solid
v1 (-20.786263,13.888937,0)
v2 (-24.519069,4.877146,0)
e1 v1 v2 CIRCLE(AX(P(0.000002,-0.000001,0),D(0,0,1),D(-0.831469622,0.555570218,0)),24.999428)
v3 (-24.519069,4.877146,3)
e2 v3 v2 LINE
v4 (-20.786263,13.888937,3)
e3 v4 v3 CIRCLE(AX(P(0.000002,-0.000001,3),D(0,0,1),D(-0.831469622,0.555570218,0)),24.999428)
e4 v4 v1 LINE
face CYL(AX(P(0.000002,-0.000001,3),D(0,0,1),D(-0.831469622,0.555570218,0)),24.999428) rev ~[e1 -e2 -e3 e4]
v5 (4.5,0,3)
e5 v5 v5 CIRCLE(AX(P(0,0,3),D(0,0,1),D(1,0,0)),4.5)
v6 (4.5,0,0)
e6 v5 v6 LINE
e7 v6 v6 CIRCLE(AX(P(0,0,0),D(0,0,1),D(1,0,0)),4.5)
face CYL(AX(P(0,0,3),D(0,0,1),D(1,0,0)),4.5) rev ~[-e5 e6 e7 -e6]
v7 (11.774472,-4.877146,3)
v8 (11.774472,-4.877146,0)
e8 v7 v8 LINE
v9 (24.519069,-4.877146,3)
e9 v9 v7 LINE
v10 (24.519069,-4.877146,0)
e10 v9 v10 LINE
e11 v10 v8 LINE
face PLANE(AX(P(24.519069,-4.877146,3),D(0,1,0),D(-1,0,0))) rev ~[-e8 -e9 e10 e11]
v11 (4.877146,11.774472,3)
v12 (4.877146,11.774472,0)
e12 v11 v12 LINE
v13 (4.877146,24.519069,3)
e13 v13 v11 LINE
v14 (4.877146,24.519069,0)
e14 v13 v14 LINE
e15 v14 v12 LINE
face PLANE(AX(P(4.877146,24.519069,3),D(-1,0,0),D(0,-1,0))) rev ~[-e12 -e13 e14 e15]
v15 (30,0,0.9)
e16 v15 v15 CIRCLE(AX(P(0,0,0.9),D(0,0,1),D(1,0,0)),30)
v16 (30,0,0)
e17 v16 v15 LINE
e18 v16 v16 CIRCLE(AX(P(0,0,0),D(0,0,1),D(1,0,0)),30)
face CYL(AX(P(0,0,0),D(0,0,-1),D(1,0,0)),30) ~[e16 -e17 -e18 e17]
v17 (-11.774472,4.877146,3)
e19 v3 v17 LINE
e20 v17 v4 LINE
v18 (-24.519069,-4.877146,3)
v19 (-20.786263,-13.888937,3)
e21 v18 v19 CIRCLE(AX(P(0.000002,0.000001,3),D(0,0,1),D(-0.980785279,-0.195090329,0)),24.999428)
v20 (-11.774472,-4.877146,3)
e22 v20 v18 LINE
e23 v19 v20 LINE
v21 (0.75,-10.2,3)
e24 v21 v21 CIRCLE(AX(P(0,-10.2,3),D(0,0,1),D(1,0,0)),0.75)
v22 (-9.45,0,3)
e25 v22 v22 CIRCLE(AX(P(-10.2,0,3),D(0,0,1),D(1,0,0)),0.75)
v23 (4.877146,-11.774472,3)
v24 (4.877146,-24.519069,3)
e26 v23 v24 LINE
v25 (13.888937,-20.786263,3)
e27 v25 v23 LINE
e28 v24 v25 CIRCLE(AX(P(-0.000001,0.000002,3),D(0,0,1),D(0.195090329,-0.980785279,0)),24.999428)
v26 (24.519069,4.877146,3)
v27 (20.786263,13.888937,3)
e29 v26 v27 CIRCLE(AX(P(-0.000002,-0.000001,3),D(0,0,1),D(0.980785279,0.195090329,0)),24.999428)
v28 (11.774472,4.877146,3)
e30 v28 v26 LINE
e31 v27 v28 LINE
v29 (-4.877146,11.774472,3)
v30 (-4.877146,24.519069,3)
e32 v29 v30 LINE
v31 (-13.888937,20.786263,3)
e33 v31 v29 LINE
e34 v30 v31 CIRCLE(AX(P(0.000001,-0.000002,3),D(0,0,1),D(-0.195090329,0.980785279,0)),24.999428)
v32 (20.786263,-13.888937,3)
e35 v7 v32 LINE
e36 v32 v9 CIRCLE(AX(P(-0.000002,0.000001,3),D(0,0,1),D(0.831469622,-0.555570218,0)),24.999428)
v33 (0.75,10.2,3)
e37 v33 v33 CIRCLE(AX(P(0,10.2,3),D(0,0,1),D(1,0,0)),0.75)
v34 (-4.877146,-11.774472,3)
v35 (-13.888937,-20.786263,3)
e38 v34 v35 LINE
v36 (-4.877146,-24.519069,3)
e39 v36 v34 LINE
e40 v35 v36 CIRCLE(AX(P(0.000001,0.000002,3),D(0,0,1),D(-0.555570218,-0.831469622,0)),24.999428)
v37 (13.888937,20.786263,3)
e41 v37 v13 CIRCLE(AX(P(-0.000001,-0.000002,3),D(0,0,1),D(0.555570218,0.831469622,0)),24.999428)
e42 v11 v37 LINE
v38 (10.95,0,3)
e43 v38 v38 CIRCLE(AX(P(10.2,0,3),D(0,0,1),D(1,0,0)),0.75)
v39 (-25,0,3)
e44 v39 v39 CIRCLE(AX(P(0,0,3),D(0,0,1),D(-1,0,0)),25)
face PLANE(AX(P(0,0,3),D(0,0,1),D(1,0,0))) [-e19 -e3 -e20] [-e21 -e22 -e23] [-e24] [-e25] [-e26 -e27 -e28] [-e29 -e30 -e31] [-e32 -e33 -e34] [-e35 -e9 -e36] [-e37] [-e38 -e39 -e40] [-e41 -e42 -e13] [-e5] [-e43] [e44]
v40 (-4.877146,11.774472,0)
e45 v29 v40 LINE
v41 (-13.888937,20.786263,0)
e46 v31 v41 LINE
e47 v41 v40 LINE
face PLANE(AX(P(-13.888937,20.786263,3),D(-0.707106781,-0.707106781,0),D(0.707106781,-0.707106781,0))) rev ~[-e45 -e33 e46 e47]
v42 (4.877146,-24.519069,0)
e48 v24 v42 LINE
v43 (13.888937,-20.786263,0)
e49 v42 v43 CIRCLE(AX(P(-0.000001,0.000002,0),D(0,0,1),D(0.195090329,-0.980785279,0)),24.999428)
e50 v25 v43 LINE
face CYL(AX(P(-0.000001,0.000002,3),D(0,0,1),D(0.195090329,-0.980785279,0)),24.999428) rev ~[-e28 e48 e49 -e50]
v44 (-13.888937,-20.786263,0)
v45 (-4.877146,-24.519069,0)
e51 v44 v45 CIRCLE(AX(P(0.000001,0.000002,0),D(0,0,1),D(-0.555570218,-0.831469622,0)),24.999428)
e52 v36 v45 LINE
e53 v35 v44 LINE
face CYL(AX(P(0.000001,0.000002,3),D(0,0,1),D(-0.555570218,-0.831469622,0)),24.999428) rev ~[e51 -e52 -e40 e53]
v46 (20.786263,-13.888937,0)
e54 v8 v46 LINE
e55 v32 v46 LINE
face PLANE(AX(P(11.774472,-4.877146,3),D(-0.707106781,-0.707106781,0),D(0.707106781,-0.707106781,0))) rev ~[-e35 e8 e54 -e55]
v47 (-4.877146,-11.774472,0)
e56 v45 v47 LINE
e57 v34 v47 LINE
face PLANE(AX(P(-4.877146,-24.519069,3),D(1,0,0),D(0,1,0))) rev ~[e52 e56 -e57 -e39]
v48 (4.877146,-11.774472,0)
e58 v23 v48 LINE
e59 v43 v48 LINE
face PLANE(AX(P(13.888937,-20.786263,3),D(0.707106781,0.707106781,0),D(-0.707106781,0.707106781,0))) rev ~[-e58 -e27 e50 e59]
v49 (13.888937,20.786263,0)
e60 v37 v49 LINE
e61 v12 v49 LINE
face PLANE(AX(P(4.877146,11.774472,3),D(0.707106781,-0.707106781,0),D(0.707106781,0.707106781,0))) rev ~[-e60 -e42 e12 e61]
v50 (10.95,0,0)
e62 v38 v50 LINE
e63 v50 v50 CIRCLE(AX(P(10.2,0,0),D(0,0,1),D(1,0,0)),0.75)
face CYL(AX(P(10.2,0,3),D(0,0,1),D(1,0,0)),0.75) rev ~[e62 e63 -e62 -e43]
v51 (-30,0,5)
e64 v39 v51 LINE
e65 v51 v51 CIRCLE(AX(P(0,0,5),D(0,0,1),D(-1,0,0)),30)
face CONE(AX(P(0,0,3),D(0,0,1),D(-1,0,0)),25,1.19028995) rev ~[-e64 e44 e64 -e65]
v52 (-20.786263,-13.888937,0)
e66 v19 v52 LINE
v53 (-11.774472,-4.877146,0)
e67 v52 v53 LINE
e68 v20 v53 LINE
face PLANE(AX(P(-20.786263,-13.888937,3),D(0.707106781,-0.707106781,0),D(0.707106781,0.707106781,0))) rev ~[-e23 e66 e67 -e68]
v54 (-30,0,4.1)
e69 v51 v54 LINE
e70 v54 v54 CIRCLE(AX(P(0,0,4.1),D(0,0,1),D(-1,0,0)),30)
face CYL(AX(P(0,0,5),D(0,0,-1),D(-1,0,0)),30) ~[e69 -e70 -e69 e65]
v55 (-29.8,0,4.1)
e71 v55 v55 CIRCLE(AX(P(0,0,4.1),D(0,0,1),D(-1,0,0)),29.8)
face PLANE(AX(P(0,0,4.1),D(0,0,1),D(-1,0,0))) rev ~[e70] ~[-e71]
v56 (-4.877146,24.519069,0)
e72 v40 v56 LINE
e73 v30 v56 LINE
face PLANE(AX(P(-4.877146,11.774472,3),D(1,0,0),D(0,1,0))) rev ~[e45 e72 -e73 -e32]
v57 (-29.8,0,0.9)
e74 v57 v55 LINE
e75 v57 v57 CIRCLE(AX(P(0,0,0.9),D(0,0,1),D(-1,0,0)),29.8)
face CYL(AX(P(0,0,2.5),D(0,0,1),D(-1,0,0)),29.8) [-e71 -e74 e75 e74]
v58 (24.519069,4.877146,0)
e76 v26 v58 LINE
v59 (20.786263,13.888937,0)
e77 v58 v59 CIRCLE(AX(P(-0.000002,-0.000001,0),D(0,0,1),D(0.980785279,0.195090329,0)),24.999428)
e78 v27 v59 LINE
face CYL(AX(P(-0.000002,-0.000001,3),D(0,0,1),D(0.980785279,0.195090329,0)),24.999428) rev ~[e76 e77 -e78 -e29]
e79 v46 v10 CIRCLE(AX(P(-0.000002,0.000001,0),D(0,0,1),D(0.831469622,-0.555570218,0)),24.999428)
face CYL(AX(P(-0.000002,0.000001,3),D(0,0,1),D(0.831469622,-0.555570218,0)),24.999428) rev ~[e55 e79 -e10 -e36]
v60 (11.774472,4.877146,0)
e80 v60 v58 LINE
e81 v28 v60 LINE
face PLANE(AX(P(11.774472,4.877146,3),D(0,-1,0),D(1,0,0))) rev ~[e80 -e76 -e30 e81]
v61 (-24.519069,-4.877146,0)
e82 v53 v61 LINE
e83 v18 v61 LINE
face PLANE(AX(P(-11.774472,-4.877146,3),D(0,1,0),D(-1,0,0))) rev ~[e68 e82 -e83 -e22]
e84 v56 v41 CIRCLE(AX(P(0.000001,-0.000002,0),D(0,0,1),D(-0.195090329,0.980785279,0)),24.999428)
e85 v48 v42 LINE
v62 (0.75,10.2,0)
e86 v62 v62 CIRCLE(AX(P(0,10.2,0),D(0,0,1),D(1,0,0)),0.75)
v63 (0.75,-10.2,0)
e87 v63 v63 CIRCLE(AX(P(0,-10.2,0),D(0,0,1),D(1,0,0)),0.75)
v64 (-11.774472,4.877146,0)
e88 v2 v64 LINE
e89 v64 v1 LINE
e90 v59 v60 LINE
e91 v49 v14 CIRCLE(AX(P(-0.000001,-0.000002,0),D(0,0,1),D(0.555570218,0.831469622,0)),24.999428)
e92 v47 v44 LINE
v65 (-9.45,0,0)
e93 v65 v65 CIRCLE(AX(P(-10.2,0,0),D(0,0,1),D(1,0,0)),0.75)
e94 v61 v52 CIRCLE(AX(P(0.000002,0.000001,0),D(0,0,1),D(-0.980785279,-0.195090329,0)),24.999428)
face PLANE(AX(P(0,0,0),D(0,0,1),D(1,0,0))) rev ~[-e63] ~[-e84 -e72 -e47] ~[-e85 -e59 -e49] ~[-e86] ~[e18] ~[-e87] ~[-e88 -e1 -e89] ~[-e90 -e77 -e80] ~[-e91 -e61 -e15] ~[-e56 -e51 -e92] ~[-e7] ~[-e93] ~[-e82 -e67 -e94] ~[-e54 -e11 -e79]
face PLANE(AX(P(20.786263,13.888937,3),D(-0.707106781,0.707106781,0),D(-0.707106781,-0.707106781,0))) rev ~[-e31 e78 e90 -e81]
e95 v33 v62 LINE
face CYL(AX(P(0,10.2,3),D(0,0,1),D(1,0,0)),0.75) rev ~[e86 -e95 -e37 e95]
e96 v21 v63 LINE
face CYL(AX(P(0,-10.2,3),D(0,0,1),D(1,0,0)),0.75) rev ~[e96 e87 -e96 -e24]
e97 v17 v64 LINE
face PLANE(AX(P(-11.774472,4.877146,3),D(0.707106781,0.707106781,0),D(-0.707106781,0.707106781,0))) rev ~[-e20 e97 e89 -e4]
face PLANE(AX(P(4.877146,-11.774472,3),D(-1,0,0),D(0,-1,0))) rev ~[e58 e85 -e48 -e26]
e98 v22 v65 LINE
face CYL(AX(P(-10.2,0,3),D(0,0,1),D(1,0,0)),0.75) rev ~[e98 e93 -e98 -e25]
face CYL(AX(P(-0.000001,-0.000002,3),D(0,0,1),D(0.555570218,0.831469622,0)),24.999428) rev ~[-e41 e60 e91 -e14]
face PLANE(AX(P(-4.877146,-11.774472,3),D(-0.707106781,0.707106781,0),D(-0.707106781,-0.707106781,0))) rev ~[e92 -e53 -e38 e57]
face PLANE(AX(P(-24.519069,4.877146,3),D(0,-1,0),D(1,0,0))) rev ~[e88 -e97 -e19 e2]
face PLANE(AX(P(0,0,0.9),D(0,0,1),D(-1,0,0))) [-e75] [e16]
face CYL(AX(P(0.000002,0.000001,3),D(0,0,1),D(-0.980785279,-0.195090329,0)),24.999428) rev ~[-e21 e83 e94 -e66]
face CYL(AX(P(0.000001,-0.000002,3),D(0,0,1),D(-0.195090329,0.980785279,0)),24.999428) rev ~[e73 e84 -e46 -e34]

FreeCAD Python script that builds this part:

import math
import FreeCAD as App
import Part
import Sketcher
from FreeCAD import Vector


def add_polygon(sketch, points):
    """Adds a closed chain of lines whose ends are joined by coincident constraints."""
    first, n = sketch.GeometryCount, len(points)
    for a, b in zip(points, points[1:] + points[:1]):
        sketch.addGeometry(Part.LineSegment(App.Vector(*a, 0), App.Vector(*b, 0)), False)
    for i in range(n):
        sketch.addConstraint(Sketcher.Constraint("Coincident", first + i, 2, first + (i + 1) % n, 1))

doc = App.newDocument("Part")
params = doc.addObject("Spreadsheet::Sheet", "Params")
for row, (alias, value) in enumerate([
    ("sketch1_diameter", "60 mm"),
    ("pad1_length", "3 mm"),
    ("sketch2_diameter", "9 mm"),
    ("sketch2_diameter2", "1.5 mm"),
    ("pocket1_length", "25 mm"),
    ("sketch3_width", "5 mm"),
    ("sketch3_height", "2 mm"),
    ("revolution_angle", "360 deg"),
    ("sketch4_width", "0.2 mm"),
    ("sketch4_height", "3.2 mm"),
    ("groove_angle", "360 deg"),
], start=1):
    params.set(f"A{row}", alias)
    params.set(f"B{row}", "=" + value)
    params.setAlias(f"B{row}", alias)

body = doc.addObject("PartDesign::Body", "Body")

# Sketch on XY plane
sketch1 = body.newObject("Sketcher::SketchObject", "Sketch")
sketch1.AttachmentSupport = (doc.getObject("XY_Plane"), [""])
sketch1.MapMode = "FlatFace"
sketch1.addGeometry(Part.Circle(Vector(0, 0, 0), Vector(0, 0, 1), 30), False)
sketch1.addConstraint(Sketcher.Constraint("Coincident", 0, 3, -1, 1))
sketch1.addConstraint(Sketcher.Constraint("Diameter", 0, 60.0))
sketch1.setExpression("Constraints[1]", "Params.sketch1_diameter")
pad1 = body.newObject("PartDesign::Pad", "Pad")
pad1.Profile = sketch1
pad1.setExpression("Length", "Params.pad1_length")

# Sketch on XY plane
sketch2 = body.newObject("Sketcher::SketchObject", "Sketch001")
sketch2.AttachmentSupport = (doc.getObject("XY_Plane"), [""])
sketch2.MapMode = "FlatFace"
sketch2.AttachmentOffset = App.Placement(Vector(0, 0, 3), App.Rotation())
sketch2.addGeometry(Part.Circle(Vector(0, 0, 0), Vector(0, 0, 1), 4.5), False)
sketch2.addGeometry(Part.Circle(Vector(-10.2, 0, 0), Vector(0, 0, 1), 0.75), False)
sketch2.addGeometry(Part.Circle(Vector(10.2, 0, 0), Vector(0, 0, 1), 0.75), False)
sketch2.addGeometry(Part.Circle(Vector(0, 10.2, 0), Vector(0, 0, 1), 0.75), False)
sketch2.addGeometry(Part.Circle(Vector(0, -10.2, 0), Vector(0, 0, 1), 0.75), False)
sketch2.addGeometry(Part.LineSegment(Vector(-4.877146, 11.774472, 0), Vector(-4.877146, 24.519069, 0)), False)
sketch2.addGeometry(Part.ArcOfCircle(Part.Circle(Vector(0.000001, -0.000002, 0), Vector(0, 0, 1), 24.999428), math.radians(101.25), math.radians(123.749999)), False)
sketch2.addGeometry(Part.LineSegment(Vector(-13.888937, 20.786263, 0), Vector(-4.877146, 11.774472, 0)), False)
sketch2.addGeometry(Part.ArcOfCircle(Part.Circle(Vector(-0.000001, -0.000002, 0), Vector(0, 0, 1), 24.999428), math.radians(56.250001), math.radians(78.75)), False)
sketch2.addGeometry(Part.LineSegment(Vector(4.877146, 24.519069, 0), Vector(4.877146, 11.774472, 0)), False)
sketch2.addGeometry(Part.LineSegment(Vector(4.877146, 11.774472, 0), Vector(13.888937, 20.786263, 0)), False)
sketch2.addGeometry(Part.ArcOfCircle(Part.Circle(Vector(0.000002, -0.000001, 0), Vector(0, 0, 1), 24.999428), math.radians(146.250001), math.radians(168.75)), False)
sketch2.addGeometry(Part.LineSegment(Vector(-24.519069, 4.877146, 0), Vector(-11.774472, 4.877146, 0)), False)
sketch2.addGeometry(Part.LineSegment(Vector(-11.774472, 4.877146, 0), Vector(-20.786263, 13.888937, 0)), False)
sketch2.addGeometry(Part.LineSegment(Vector(-11.774472, -4.877146, 0), Vector(-24.519069, -4.877146, 0)), False)
sketch2.addGeometry(Part.ArcOfCircle(Part.Circle(Vector(0.000002, 0.000001, 0), Vector(0, 0, 1), 24.999428), math.radians(-168.75), math.radians(-146.250001)), False)
sketch2.addGeometry(Part.LineSegment(Vector(-20.786263, -13.888937, 0), Vector(-11.774472, -4.877146, 0)), False)
sketch2.addGeometry(Part.LineSegment(Vector(-4.877146, -11.774472, 0), Vector(-13.888937, -20.786263, 0)), False)
sketch2.addGeometry(Part.ArcOfCircle(Part.Circle(Vector(0.000001, 0.000002, 0), Vector(0, 0, 1), 24.999428), math.radians(-123.749999), math.radians(-101.25)), False)
sketch2.addGeometry(Part.LineSegment(Vector(-4.877146, -24.519069, 0), Vector(-4.877146, -11.774472, 0)), False)
sketch2.addGeometry(Part.LineSegment(Vector(4.877146, -11.774472, 0), Vector(4.877146, -24.519069, 0)), False)
sketch2.addGeometry(Part.ArcOfCircle(Part.Circle(Vector(-0.000001, 0.000002, 0), Vector(0, 0, 1), 24.999428), math.radians(-78.75), math.radians(-56.250001)), False)
sketch2.addGeometry(Part.LineSegment(Vector(13.888937, -20.786263, 0), Vector(4.877146, -11.774472, 0)), False)
sketch2.addGeometry(Part.LineSegment(Vector(11.774472, -4.877146, 0), Vector(20.786263, -13.888937, 0)), False)
sketch2.addGeometry(Part.ArcOfCircle(Part.Circle(Vector(-0.000002, 0.000001, 0), Vector(0, 0, 1), 24.999428), math.radians(-33.749999), math.radians(-11.25)), False)
sketch2.addGeometry(Part.LineSegment(Vector(24.519069, -4.877146, 0), Vector(11.774472, -4.877146, 0)), False)
sketch2.addGeometry(Part.LineSegment(Vector(11.774472, 4.877146, 0), Vector(24.519069, 4.877146, 0)), False)
sketch2.addGeometry(Part.ArcOfCircle(Part.Circle(Vector(-0.000002, -0.000001, 0), Vector(0, 0, 1), 24.999428), math.radians(11.25), math.radians(33.749999)), False)
sketch2.addGeometry(Part.LineSegment(Vector(20.786263, 13.888937, 0), Vector(11.774472, 4.877146, 0)), False)
sketch2.addConstraint(Sketcher.Constraint("Coincident", 5, 2, 6, 1))
sketch2.addConstraint(Sketcher.Constraint("Coincident", 6, 2, 7, 1))
sketch2.addConstraint(Sketcher.Constraint("Coincident", 7, 2, 5, 1))
sketch2.addConstraint(Sketcher.Constraint("Coincident", 8, 2, 9, 1))
sketch2.addConstraint(Sketcher.Constraint("Coincident", 9, 2, 10, 1))
sketch2.addConstraint(Sketcher.Constraint("Coincident", 10, 2, 8, 1))
sketch2.addConstraint(Sketcher.Constraint("Coincident", 11, 2, 12, 1))
sketch2.addConstraint(Sketcher.Constraint("Coincident", 12, 2, 13, 1))
sketch2.addConstraint(Sketcher.Constraint("Coincident", 13, 2, 11, 1))
sketch2.addConstraint(Sketcher.Constraint("Coincident", 14, 2, 15, 1))
sketch2.addConstraint(Sketcher.Constraint("Coincident", 15, 2, 16, 1))
sketch2.addConstraint(Sketcher.Constraint("Coincident", 16, 2, 14, 1))
sketch2.addConstraint(Sketcher.Constraint("Coincident", 17, 2, 18, 1))
sketch2.addConstraint(Sketcher.Constraint("Coincident", 18, 2, 19, 1))
sketch2.addConstraint(Sketcher.Constraint("Coincident", 19, 2, 17, 1))
sketch2.addConstraint(Sketcher.Constraint("Coincident", 20, 2, 21, 1))
sketch2.addConstraint(Sketcher.Constraint("Coincident", 21, 2, 22, 1))
sketch2.addConstraint(Sketcher.Constraint("Coincident", 22, 2, 20, 1))
sketch2.addConstraint(Sketcher.Constraint("Coincident", 23, 2, 24, 1))
sketch2.addConstraint(Sketcher.Constraint("Coincident", 24, 2, 25, 1))
sketch2.addConstraint(Sketcher.Constraint("Coincident", 25, 2, 23, 1))
sketch2.addConstraint(Sketcher.Constraint("Coincident", 26, 2, 27, 1))
sketch2.addConstraint(Sketcher.Constraint("Coincident", 27, 2, 28, 1))
sketch2.addConstraint(Sketcher.Constraint("Coincident", 28, 2, 26, 1))
sketch2.addConstraint(Sketcher.Constraint("Vertical", 5))
sketch2.addConstraint(Sketcher.Constraint("Vertical", 9))
sketch2.addConstraint(Sketcher.Constraint("Horizontal", 12))
sketch2.addConstraint(Sketcher.Constraint("Horizontal", 14))
sketch2.addConstraint(Sketcher.Constraint("Vertical", 19))
sketch2.addConstraint(Sketcher.Constraint("Vertical", 20))
sketch2.addConstraint(Sketcher.Constraint("Horizontal", 25))
sketch2.addConstraint(Sketcher.Constraint("Horizontal", 26))
sketch2.addConstraint(Sketcher.Constraint("Coincident", 0, 3, -1, 1))
sketch2.addConstraint(Sketcher.Constraint("Coincident", 6, 3, -1, 1))
sketch2.addConstraint(Sketcher.Constraint("Coincident", 8, 3, -1, 1))
sketch2.addConstraint(Sketcher.Constraint("Coincident", 11, 3, -1, 1))
sketch2.addConstraint(Sketcher.Constraint("Coincident", 15, 3, -1, 1))
sketch2.addConstraint(Sketcher.Constraint("Coincident", 18, 3, -1, 1))
sketch2.addConstraint(Sketcher.Constraint("Coincident", 21, 3, -1, 1))
sketch2.addConstraint(Sketcher.Constraint("Coincident", 24, 3, -1, 1))
sketch2.addConstraint(Sketcher.Constraint("Coincident", 27, 3, -1, 1))
sketch2.addConstraint(Sketcher.Constraint("Equal", 1, 2))
sketch2.addConstraint(Sketcher.Constraint("Equal", 2, 3))
sketch2.addConstraint(Sketcher.Constraint("Equal", 3, 4))
sketch2.addConstraint(Sketcher.Constraint("Equal", 6, 8))
sketch2.addConstraint(Sketcher.Constraint("Equal", 8, 11))
sketch2.addConstraint(Sketcher.Constraint("Equal", 11, 15))
sketch2.addConstraint(Sketcher.Constraint("Equal", 15, 18))
sketch2.addConstraint(Sketcher.Constraint("Equal", 18, 21))
sketch2.addConstraint(Sketcher.Constraint("Equal", 21, 24))
sketch2.addConstraint(Sketcher.Constraint("Equal", 24, 27))
sketch2.addConstraint(Sketcher.Constraint("Symmetric", 1, 3, 2, 3, -1, 1))
sketch2.addConstraint(Sketcher.Constraint("Symmetric", 3, 3, 4, 3, -1, 1))
sketch2.addConstraint(Sketcher.Constraint("Symmetric", 9, 2, 19, 2, -1, 1))
sketch2.addConstraint(Sketcher.Constraint("Symmetric", 7, 2, 22, 2, -1, 1))
sketch2.addConstraint(Sketcher.Constraint("Symmetric", 12, 2, 25, 2, -1, 1))
sketch2.addConstraint(Sketcher.Constraint("Symmetric", 16, 2, 28, 2, -1, 1))
sketch2.addConstraint(Sketcher.Constraint("Symmetric", 7, 2, 9, 2, -2))
sketch2.addConstraint(Sketcher.Constraint("Symmetric", 16, 2, 25, 2, -2))
sketch2.addConstraint(Sketcher.Constraint("PointOnObject", 1, 3, -1))
sketch2.addConstraint(Sketcher.Constraint("PointOnObject", 3, 3, -2))
sketch2.addConstraint(Sketcher.Constraint("Perpendicular", 7, 10))
sketch2.addConstraint(Sketcher.Constraint("Perpendicular", 10, 13))
sketch2.addConstraint(Sketcher.Constraint("Perpendicular", 13, 16))
sketch2.addConstraint(Sketcher.Constraint("Parallel", 16, 17))
sketch2.addConstraint(Sketcher.Constraint("Perpendicular", 17, 22))
sketch2.addConstraint(Sketcher.Constraint("Parallel", 22, 23))
sketch2.addConstraint(Sketcher.Constraint("Perpendicular", 23, 28))
sketch2.addConstraint(Sketcher.Constraint("Horizontal", 6, 2, 10, 2))
sketch2.addConstraint(Sketcher.Constraint("Equal", 26, 5))
sketch2.addConstraint(Sketcher.Constraint("Equal", 10, 13))
sketch2.addConstraint(Sketcher.Constraint("Diameter", 0, 9.0))
sketch2.addConstraint(Sketcher.Constraint("Diameter", 1, 1.5))
sketch2.addConstraint(Sketcher.Constraint("DistanceX", 1, 3, -1, 1, 10.2))
sketch2.addConstraint(Sketcher.Constraint("DistanceY", -1, 1, 3, 3, 10.2))
sketch2.addConstraint(Sketcher.Constraint("Radius", 6, 24.999428))
sketch2.addConstraint(Sketcher.Constraint("DistanceX", 12, 1, 12, 2, 12.744597))
sketch2.addConstraint(Sketcher.Constraint("DistanceY", -1, 1, 5, 2, 24.519069))
sketch2.setExpression("Constraints[71]", "Params.sketch2_diameter")
sketch2.setExpression("Constraints[72]", "Params.sketch2_diameter2")
pocket1 = body.newObject("PartDesign::Pocket", "Pocket")
pocket1.Profile = sketch2
pocket1.setExpression("Length", "Params.pocket1_length")

# Sketch on XZ plane
sketch3 = body.newObject("Sketcher::SketchObject", "Sketch002")
sketch3.AttachmentSupport = (doc.getObject("XZ_Plane"), [""])
sketch3.MapMode = "FlatFace"
add_polygon(sketch3, [(-30, 5), (-30, 3), (-25, 3)])  # lines 0-2
sketch3.addConstraint(Sketcher.Constraint("Vertical", 0))
sketch3.addConstraint(Sketcher.Constraint("Horizontal", 1))
sketch3.addConstraint(Sketcher.Constraint("DistanceX", 1, 1, 1, 2, 5.0))
sketch3.addConstraint(Sketcher.Constraint("DistanceY", 0, 2, 0, 1, 2.0))
sketch3.addConstraint(Sketcher.Constraint("DistanceX", 0, 2, -1, 1, 30.0))
sketch3.addConstraint(Sketcher.Constraint("DistanceY", -1, 1, 0, 2, 3.0))
sketch3.setExpression("Constraints[5]", "Params.sketch3_width")
sketch3.setExpression("Constraints[6]", "Params.sketch3_height")
revolution = body.newObject("PartDesign::Revolution", "Revolution")
revolution.Profile = sketch3
revolution.ReferenceAxis = (sketch3, ["V_Axis"])
revolution.setExpression("Angle", "Params.revolution_angle")

# Sketch on XZ plane
sketch4 = body.newObject("Sketcher::SketchObject", "Sketch003")
sketch4.AttachmentSupport = (doc.getObject("XZ_Plane"), [""])
sketch4.MapMode = "FlatFace"
add_polygon(sketch4, [(-30, 4.1), (-30, 0.9), (-29.8, 0.9), (-29.8, 4.1)])  # lines 0-3
sketch4.addConstraint(Sketcher.Constraint("Vertical", 0))
sketch4.addConstraint(Sketcher.Constraint("Horizontal", 1))
sketch4.addConstraint(Sketcher.Constraint("Vertical", 2))
sketch4.addConstraint(Sketcher.Constraint("Horizontal", 3))
sketch4.addConstraint(Sketcher.Constraint("DistanceX", 1, 1, 1, 2, 0.2))
sketch4.addConstraint(Sketcher.Constraint("DistanceY", 0, 2, 0, 1, 3.2))
sketch4.addConstraint(Sketcher.Constraint("DistanceX", 0, 2, -1, 1, 30.0))
sketch4.addConstraint(Sketcher.Constraint("DistanceY", -1, 1, 0, 2, 0.9))
sketch4.setExpression("Constraints[8]", "Params.sketch4_width")
sketch4.setExpression("Constraints[9]", "Params.sketch4_height")
groove = body.newObject("PartDesign::Groove", "Groove")
groove.Profile = sketch4
groove.ReferenceAxis = (sketch4, ["V_Axis"])
groove.setExpression("Angle", "Params.groove_angle")

doc.recompute()
